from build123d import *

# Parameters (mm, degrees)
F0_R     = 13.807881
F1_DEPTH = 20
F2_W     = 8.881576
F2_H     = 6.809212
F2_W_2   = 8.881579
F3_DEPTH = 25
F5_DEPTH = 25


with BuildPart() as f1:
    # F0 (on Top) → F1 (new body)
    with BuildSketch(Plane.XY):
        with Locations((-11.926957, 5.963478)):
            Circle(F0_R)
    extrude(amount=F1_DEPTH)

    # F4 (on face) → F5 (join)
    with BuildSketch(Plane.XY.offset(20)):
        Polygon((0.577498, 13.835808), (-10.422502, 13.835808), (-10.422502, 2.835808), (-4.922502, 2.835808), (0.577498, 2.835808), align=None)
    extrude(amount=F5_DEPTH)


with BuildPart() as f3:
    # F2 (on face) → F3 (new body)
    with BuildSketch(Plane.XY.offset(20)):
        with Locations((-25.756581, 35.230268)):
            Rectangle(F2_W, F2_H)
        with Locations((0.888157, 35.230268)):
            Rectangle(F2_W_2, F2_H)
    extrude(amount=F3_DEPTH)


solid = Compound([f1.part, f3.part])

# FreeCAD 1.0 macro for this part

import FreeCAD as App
import Part
import Sketcher


def add_polygon(sketch, points):
    """Adds a closed chain of lines whose ends are joined by coincident constraints."""
    first, n = sketch.GeometryCount, len(points)
    for a, b in zip(points, points[1:] + points[:1]):
        sketch.addGeometry(Part.LineSegment(App.Vector(*a, 0), App.Vector(*b, 0)), False)
    for i in range(n):
        sketch.addConstraint(Sketcher.Constraint("Coincident", first + i, 2, first + (i + 1) % n, 1))

doc = App.newDocument("Part")
body = doc.addObject("PartDesign::Body", "Body")

sketch1 = body.newObject("Sketcher::SketchObject", "Sketch")
sketch1.AttachmentSupport = (doc.getObject("XY_Plane"), [""])
sketch1.MapMode = "FlatFace"
sketch1.addGeometry(Part.Circle(App.Vector(-12, 6, 0), App.Vector(0, 0, 1), 14), False)
sketch1.addConstraint([
    Sketcher.Constraint("Diameter", 0, 27.615762),
    Sketcher.Constraint("DistanceY", -1, 1, 0, 3, 5.963478),
    Sketcher.Constraint("DistanceX", 0, 3, -1, 1, 11.926957),
])
pad1 = body.newObject("PartDesign::Pad", "Pad")
pad1.Profile = sketch1
pad1.Length = 20

sketch2 = body.newObject("Sketcher::SketchObject", "Sketch001")
sketch2.AttachmentSupport = (doc.getObject("XY_Plane"), [""])
sketch2.MapMode = "FlatFace"
sketch2.AttachmentOffset = App.Placement(App.Vector(0, 0, 20), App.Rotation())
add_polygon(sketch2, [(1, 14), (-10, 14), (-10, 3), (1, 3)])
sketch2.addConstraint([
    Sketcher.Constraint("Horizontal", 0),
    Sketcher.Constraint("Vertical", 1),
    Sketcher.Constraint("Horizontal", 2),
    Sketcher.Constraint("Vertical", 3),
    Sketcher.Constraint("Equal", 2, 1),
    Sketcher.Constraint("DistanceX", 0, 2, 0, 1, 11.0),
    Sketcher.Constraint("DistanceY", -1, 1, 1, 2, 2.835808),
    Sketcher.Constraint("DistanceX", 0, 2, -1, 1, 10.422502),
])
pad2 = body.newObject("PartDesign::Pad", "Pad001")
pad2.Profile = sketch2
pad2.Length = 25
body2 = doc.addObject("PartDesign::Body", "Body001")
body2.AllowCompound = True

sketch3 = body2.newObject("Sketcher::SketchObject", "Sketch002")
sketch3.AttachmentSupport = (doc.getObject("XY_Plane001"), [""])
sketch3.MapMode = "FlatFace"
sketch3.AttachmentOffset = App.Placement(App.Vector(0, 0, 20), App.Rotation())
add_polygon(sketch3, [(-30, 39), (-30, 32), (-21, 32), (-21, 39)])
add_polygon(sketch3, [(-4, 39), (-4, 32), (5, 32), (5, 39)])
sketch3.addConstraint([
    Sketcher.Constraint("Vertical", 0),
    Sketcher.Constraint("Horizontal", 1),
    Sketcher.Constraint("Vertical", 2),
    Sketcher.Constraint("Horizontal", 3),
    Sketcher.Constraint("Vertical", 4),
    Sketcher.Constraint("Horizontal", 5),
    Sketcher.Constraint("Vertical", 6),
    Sketcher.Constraint("Horizontal", 7),
    Sketcher.Constraint("Horizontal", 1, 2, 4, 2),
    Sketcher.Constraint("Horizontal", 3, 2, 6, 2),
    Sketcher.Constraint("DistanceX", 5, 1, 5, 2, 8.881579),
    Sketcher.Constraint("DistanceX", 1, 1, 1, 2, 8.881576),
    Sketcher.Constraint("DistanceY", 0, 2, 0, 1, 6.809212),
    Sketcher.Constraint("DistanceX", 0, 2, -1, 1, 30.197369),
    Sketcher.Constraint("DistanceX", 1, 2, 4, 2, 17.76316),
    Sketcher.Constraint("DistanceY", -1, 1, 0, 2, 31.825662),
])
pad3 = body2.newObject("PartDesign::Pad", "Pad002")
pad3.Profile = sketch3
pad3.Length = 25

doc.recompute()
